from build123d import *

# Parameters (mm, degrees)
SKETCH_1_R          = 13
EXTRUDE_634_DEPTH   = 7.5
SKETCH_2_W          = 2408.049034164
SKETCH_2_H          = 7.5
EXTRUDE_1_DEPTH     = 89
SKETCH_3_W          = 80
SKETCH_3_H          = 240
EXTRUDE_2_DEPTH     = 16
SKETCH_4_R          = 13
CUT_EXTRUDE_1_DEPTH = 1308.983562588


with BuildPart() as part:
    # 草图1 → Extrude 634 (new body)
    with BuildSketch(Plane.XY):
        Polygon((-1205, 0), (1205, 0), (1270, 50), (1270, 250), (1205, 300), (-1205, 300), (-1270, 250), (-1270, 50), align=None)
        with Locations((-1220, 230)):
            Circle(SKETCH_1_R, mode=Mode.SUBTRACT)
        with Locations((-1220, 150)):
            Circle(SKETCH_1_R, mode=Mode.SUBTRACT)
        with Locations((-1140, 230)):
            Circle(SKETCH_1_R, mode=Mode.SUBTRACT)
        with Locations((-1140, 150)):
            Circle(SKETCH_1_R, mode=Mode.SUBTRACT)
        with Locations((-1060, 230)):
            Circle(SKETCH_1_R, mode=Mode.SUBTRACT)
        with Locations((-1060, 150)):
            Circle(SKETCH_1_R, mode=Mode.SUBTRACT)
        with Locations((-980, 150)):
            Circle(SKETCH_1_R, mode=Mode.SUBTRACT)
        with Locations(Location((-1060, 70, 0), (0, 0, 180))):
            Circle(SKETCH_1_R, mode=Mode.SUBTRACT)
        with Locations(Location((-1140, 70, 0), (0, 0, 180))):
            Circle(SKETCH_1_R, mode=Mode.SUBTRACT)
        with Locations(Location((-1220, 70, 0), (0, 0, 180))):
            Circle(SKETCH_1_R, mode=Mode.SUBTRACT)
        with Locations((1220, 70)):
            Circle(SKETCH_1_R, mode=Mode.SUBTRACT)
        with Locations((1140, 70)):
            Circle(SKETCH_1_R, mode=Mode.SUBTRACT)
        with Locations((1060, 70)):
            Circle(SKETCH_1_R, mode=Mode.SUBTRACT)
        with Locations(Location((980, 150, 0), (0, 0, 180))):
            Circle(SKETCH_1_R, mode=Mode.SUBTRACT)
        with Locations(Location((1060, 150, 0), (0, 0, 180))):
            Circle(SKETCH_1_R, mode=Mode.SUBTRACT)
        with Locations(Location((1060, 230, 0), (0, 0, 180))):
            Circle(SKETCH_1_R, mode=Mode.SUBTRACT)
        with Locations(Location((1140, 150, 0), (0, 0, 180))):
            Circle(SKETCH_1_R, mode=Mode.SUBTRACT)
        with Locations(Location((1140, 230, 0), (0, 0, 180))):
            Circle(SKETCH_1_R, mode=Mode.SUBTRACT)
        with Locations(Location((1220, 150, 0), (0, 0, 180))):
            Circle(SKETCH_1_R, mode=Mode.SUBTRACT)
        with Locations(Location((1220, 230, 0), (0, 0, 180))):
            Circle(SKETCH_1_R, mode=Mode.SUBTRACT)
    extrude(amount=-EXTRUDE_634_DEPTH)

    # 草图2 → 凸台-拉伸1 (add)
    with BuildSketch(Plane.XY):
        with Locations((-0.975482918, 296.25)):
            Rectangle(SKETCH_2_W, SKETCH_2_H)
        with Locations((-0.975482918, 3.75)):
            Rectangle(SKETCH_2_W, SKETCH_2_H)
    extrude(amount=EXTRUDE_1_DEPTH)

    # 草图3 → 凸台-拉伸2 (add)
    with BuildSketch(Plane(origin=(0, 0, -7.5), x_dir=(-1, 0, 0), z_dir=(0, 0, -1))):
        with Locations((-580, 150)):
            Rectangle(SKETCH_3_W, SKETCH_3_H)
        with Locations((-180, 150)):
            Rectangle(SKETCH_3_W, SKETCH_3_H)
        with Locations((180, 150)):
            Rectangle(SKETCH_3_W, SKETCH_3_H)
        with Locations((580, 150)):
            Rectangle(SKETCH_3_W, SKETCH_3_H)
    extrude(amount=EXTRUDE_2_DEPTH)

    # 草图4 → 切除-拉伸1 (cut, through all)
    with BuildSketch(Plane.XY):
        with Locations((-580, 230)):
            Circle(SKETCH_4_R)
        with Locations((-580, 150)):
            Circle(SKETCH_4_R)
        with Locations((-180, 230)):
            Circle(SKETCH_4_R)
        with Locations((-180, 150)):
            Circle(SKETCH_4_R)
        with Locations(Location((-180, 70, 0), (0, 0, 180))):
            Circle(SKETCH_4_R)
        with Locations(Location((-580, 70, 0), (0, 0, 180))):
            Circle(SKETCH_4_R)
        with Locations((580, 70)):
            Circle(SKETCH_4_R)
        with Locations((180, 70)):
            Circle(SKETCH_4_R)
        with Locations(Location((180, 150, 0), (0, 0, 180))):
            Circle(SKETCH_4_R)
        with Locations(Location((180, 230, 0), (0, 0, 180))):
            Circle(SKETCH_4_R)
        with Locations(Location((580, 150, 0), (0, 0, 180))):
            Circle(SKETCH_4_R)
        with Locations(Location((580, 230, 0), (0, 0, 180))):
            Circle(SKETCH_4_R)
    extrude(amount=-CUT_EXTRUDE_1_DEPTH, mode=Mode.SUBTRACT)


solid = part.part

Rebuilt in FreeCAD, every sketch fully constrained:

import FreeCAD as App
import Part
import Sketcher

V = App.Vector
Q = App.Units.Quantity


def add_polygon(sketch, points):
    """Adds a closed chain of lines whose ends are joined by coincident constraints."""
    first, n = sketch.GeometryCount, len(points)
    for a, b in zip(points, points[1:] + points[:1]):
        sketch.addGeometry(Part.LineSegment(App.Vector(*a, 0), App.Vector(*b, 0)), False)
    for i in range(n):
        sketch.addConstraint(Sketcher.Constraint("Coincident", first + i, 2, first + (i + 1) % n, 1))

doc = App.newDocument("Part")
body = doc.addObject("PartDesign::Body", "Body")

sketch1 = doc.addObject("Sketcher::SketchObject", "Sketch")
body.addObject(sketch1)
sketch1.AttachmentSupport = (doc.XY_Plane, [""])
sketch1.MapMode = "FlatFace"
add_polygon(sketch1, [(-1205, 0), (1205, 0), (1270, 50), (1270, 250), (1205, 300), (-1205, 300), (-1270, 250), (-1270, 50)])
sketch1.addGeometry(Part.Circle(V(-1220, 70, 0), V(0, 0, 1), 13), False)
sketch1.addGeometry(Part.Circle(V(-1140, 70, 0), V(0, 0, 1), 13), False)
sketch1.addGeometry(Part.Circle(V(-1060, 70, 0), V(0, 0, 1), 13), False)
sketch1.addGeometry(Part.Circle(V(1060, 70, 0), V(0, 0, 1), 13), False)
sketch1.addGeometry(Part.Circle(V(1140, 70, 0), V(0, 0, 1), 13), False)
sketch1.addGeometry(Part.Circle(V(1220, 70, 0), V(0, 0, 1), 13), False)
sketch1.addGeometry(Part.Circle(V(-1220, 150, 0), V(0, 0, 1), 13), False)
sketch1.addGeometry(Part.Circle(V(-1140, 150, 0), V(0, 0, 1), 13), False)
sketch1.addGeometry(Part.Circle(V(-1060, 150, 0), V(0, 0, 1), 13), False)
sketch1.addGeometry(Part.Circle(V(-980, 150, 0), V(0, 0, 1), 13), False)
sketch1.addGeometry(Part.Circle(V(-1220, 230, 0), V(0, 0, 1), 13), False)
sketch1.addGeometry(Part.Circle(V(-1140, 230, 0), V(0, 0, 1), 13), False)
sketch1.addGeometry(Part.Circle(V(-1060, 230, 0), V(0, 0, 1), 13), False)
sketch1.addGeometry(Part.Circle(V(980, 150, 0), V(0, 0, 1), 13), False)
sketch1.addGeometry(Part.Circle(V(1060, 150, 0), V(0, 0, 1), 13), False)
sketch1.addGeometry(Part.Circle(V(1140, 150, 0), V(0, 0, 1), 13), False)
sketch1.addGeometry(Part.Circle(V(1220, 150, 0), V(0, 0, 1), 13), False)
sketch1.addGeometry(Part.Circle(V(1060, 230, 0), V(0, 0, 1), 13), False)
sketch1.addGeometry(Part.Circle(V(1140, 230, 0), V(0, 0, 1), 13), False)
sketch1.addGeometry(Part.Circle(V(1220, 230, 0), V(0, 0, 1), 13), False)
sketch1.addConstraint(Sketcher.Constraint("Horizontal", 0))
sketch1.addConstraint(Sketcher.Constraint("Vertical", 2))
sketch1.addConstraint(Sketcher.Constraint("Horizontal", 4))
sketch1.addConstraint(Sketcher.Constraint("Vertical", 6))
sketch1.addConstraint(Sketcher.Constraint("Equal", 8, 9))
sketch1.addConstraint(Sketcher.Constraint("Equal", 9, 10))
sketch1.addConstraint(Sketcher.Constraint("Equal", 10, 11))
sketch1.addConstraint(Sketcher.Constraint("Equal", 11, 12))
sketch1.addConstraint(Sketcher.Constraint("Equal", 12, 13))
sketch1.addConstraint(Sketcher.Constraint("Equal", 13, 14))
sketch1.addConstraint(Sketcher.Constraint("Equal", 14, 15))
sketch1.addConstraint(Sketcher.Constraint("Equal", 15, 16))
sketch1.addConstraint(Sketcher.Constraint("Equal", 16, 17))
sketch1.addConstraint(Sketcher.Constraint("Equal", 17, 18))
sketch1.addConstraint(Sketcher.Constraint("Equal", 18, 19))
sketch1.addConstraint(Sketcher.Constraint("Equal", 19, 20))
sketch1.addConstraint(Sketcher.Constraint("Equal", 20, 21))
sketch1.addConstraint(Sketcher.Constraint("Equal", 21, 22))
sketch1.addConstraint(Sketcher.Constraint("Equal", 22, 23))
sketch1.addConstraint(Sketcher.Constraint("Equal", 23, 24))
sketch1.addConstraint(Sketcher.Constraint("Equal", 24, 25))
sketch1.addConstraint(Sketcher.Constraint("Equal", 25, 26))
sketch1.addConstraint(Sketcher.Constraint("Equal", 26, 27))
sketch1.addConstraint(Sketcher.Constraint("Symmetric", 0, 2, 7, 2, -1, 1))
sketch1.addConstraint(Sketcher.Constraint("Symmetric", 10, 3, 11, 3, -2))
sketch1.addConstraint(Sketcher.Constraint("Symmetric", 9, 3, 12, 3, -2))
sketch1.addConstraint(Sketcher.Constraint("Symmetric", 8, 3, 13, 3, -2))
sketch1.addConstraint(Sketcher.Constraint("Symmetric", 17, 3, 21, 3, -2))
sketch1.addConstraint(Sketcher.Constraint("Symmetric", 16, 3, 22, 3, -2))
sketch1.addConstraint(Sketcher.Constraint("Symmetric", 15, 3, 23, 3, -2))
sketch1.addConstraint(Sketcher.Constraint("Symmetric", 14, 3, 24, 3, -2))
sketch1.addConstraint(Sketcher.Constraint("Symmetric", 20, 3, 25, 3, -2))
sketch1.addConstraint(Sketcher.Constraint("Symmetric", 19, 3, 26, 3, -2))
sketch1.addConstraint(Sketcher.Constraint("Symmetric", 18, 3, 27, 3, -2))
sketch1.addConstraint(Sketcher.Constraint("Symmetric", 2, 2, 5, 2, -2))
sketch1.addConstraint(Sketcher.Constraint("Parallel", 1, 5))
sketch1.addConstraint(Sketcher.Constraint("Parallel", 3, 7))
sketch1.addConstraint(Sketcher.Constraint("Horizontal", 8, 3, 9, 3))
sketch1.addConstraint(Sketcher.Constraint("Horizontal", 9, 3, 10, 3))
sketch1.addConstraint(Sketcher.Constraint("Horizontal", 14, 3, 15, 3))
sketch1.addConstraint(Sketcher.Constraint("Horizontal", 15, 3, 16, 3))
sketch1.addConstraint(Sketcher.Constraint("Horizontal", 16, 3, 17, 3))
sketch1.addConstraint(Sketcher.Constraint("Horizontal", 18, 3, 19, 3))
sketch1.addConstraint(Sketcher.Constraint("Horizontal", 19, 3, 20, 3))
sketch1.addConstraint(Sketcher.Constraint("Horizontal", 1, 2, 6, 2))
sketch1.addConstraint(Sketcher.Constraint("Vertical", 8, 3, 14, 3))
sketch1.addConstraint(Sketcher.Constraint("Vertical", 9, 3, 15, 3))
sketch1.addConstraint(Sketcher.Constraint("Vertical", 10, 3, 16, 3))
sketch1.addConstraint(Sketcher.Constraint("Vertical", 14, 3, 18, 3))
sketch1.addConstraint(Sketcher.Constraint("Vertical", 15, 3, 19, 3))
sketch1.addConstraint(Sketcher.Constraint("Vertical", 16, 3, 20, 3))
sketch1.addConstraint(Sketcher.Constraint("Vertical", 0, 2, 3, 2))
sketch1.addConstraint(Sketcher.Constraint("Diameter", 8, Q("26 mm")))
sketch1.addConstraint(Sketcher.Constraint("DistanceX", 0, 1, 0, 2, Q("2410 mm")))
sketch1.addConstraint(Sketcher.Constraint("DistanceY", 2, 1, 2, 2, Q("200 mm")))
sketch1.addConstraint(Sketcher.Constraint("DistanceX", 8, 3, -1, 1, Q("1220 mm")))
sketch1.addConstraint(Sketcher.Constraint("DistanceY", -1, 1, 8, 3, Q("70 mm")))
sketch1.addConstraint(Sketcher.Constraint("DistanceX", 9, 3, -1, 1, Q("1140 mm")))
sketch1.addConstraint(Sketcher.Constraint("DistanceX", 10, 3, -1, 1, Q("1060 mm")))
sketch1.addConstraint(Sketcher.Constraint("DistanceY", -1, 1, 14, 3, Q("150 mm")))
sketch1.addConstraint(Sketcher.Constraint("DistanceX", 17, 3, -1, 1, Q("980 mm")))
sketch1.addConstraint(Sketcher.Constraint("DistanceY", -1, 1, 18, 3, Q("230 mm")))
sketch1.addConstraint(Sketcher.Constraint("DistanceX", -1, 1, 1, 2, Q("1270 mm")))
sketch1.addConstraint(Sketcher.Constraint("DistanceY", -1, 1, 1, 2, Q("50 mm")))
pad1 = doc.addObject("PartDesign::Pad", "Pad")
body.addObject(pad1)
pad1.Profile = sketch1
pad1.Length = 7.5
pad1.Reversed = True

sketch2 = doc.addObject("Sketcher::SketchObject", "Sketch001")
body.addObject(sketch2)
sketch2.AttachmentSupport = (doc.XY_Plane, [""])
sketch2.MapMode = "FlatFace"
add_polygon(sketch2, [(-1205, 300), (-1205, 292), (1203, 292), (1203, 300)])
add_polygon(sketch2, [(-1205, 8), (-1205, 0), (1203, 0), (1203, 8)])
sketch2.addConstraint(Sketcher.Constraint("Vertical", 0))
sketch2.addConstraint(Sketcher.Constraint("Horizontal", 1))
sketch2.addConstraint(Sketcher.Constraint("Vertical", 2))
sketch2.addConstraint(Sketcher.Constraint("Horizontal", 3))
sketch2.addConstraint(Sketcher.Constraint("Vertical", 4))
sketch2.addConstraint(Sketcher.Constraint("Horizontal", 5))
sketch2.addConstraint(Sketcher.Constraint("Vertical", 6))
sketch2.addConstraint(Sketcher.Constraint("Horizontal", 7))
sketch2.addConstraint(Sketcher.Constraint("PointOnObject", 4, 2, -1))
sketch2.addConstraint(Sketcher.Constraint("Vertical", 3, 2, 4, 2))
sketch2.addConstraint(Sketcher.Constraint("Vertical", 2, 2, 5, 2))
sketch2.addConstraint(Sketcher.Constraint("Equal", 2, 4))
sketch2.addConstraint(Sketcher.Constraint("DistanceY", 0, 2, 0, 1, Q("7.5 mm")))
sketch2.addConstraint(Sketcher.Constraint("DistanceX", 0, 2, -1, 1, Q("1205 mm")))
sketch2.addConstraint(Sketcher.Constraint("DistanceY", -1, 1, 2, 2, Q("300 mm")))
sketch2.addConstraint(Sketcher.Constraint("DistanceX", 1, 1, 1, 2, Q("2408.049034 mm")))
pad2 = doc.addObject("PartDesign::Pad", "Pad001")
body.addObject(pad2)
pad2.Profile = sketch2
pad2.Length = 89

sketch3 = doc.addObject("Sketcher::SketchObject", "Sketch002")
body.addObject(sketch3)
sketch3.AttachmentSupport = (doc.XY_Plane, [""])
sketch3.MapMode = "FlatFace"
sketch3.AttachmentOffset = App.Placement(V(0, 0, -7.5), App.Rotation())
add_polygon(sketch3, [(620, 270), (620, 30), (540, 30), (540, 270)])
add_polygon(sketch3, [(220, 270), (220, 30), (140, 30), (140, 270)])
add_polygon(sketch3, [(-140, 270), (-140, 30), (-220, 30), (-220, 270)])
add_polygon(sketch3, [(-540, 270), (-540, 30), (-620, 30), (-620, 270)])
sketch3.addConstraint(Sketcher.Constraint("Vertical", 0))
sketch3.addConstraint(Sketcher.Constraint("Horizontal", 1))
sketch3.addConstraint(Sketcher.Constraint("Vertical", 2))
sketch3.addConstraint(Sketcher.Constraint("Horizontal", 3))
sketch3.addConstraint(Sketcher.Constraint("Vertical", 4))
sketch3.addConstraint(Sketcher.Constraint("Horizontal", 5))
sketch3.addConstraint(Sketcher.Constraint("Vertical", 6))
sketch3.addConstraint(Sketcher.Constraint("Horizontal", 7))
sketch3.addConstraint(Sketcher.Constraint("Vertical", 8))
sketch3.addConstraint(Sketcher.Constraint("Horizontal", 9))
sketch3.addConstraint(Sketcher.Constraint("Vertical", 10))
sketch3.addConstraint(Sketcher.Constraint("Horizontal", 11))
sketch3.addConstraint(Sketcher.Constraint("Vertical", 12))
sketch3.addConstraint(Sketcher.Constraint("Horizontal", 13))
sketch3.addConstraint(Sketcher.Constraint("Vertical", 14))
sketch3.addConstraint(Sketcher.Constraint("Horizontal", 15))
sketch3.addConstraint(Sketcher.Constraint("Symmetric", 5, 2, 8, 2, -2))
sketch3.addConstraint(Sketcher.Constraint("Symmetric", 7, 2, 10, 2, -2))
sketch3.addConstraint(Sketcher.Constraint("Symmetric", 1, 2, 12, 2, -2))
sketch3.addConstraint(Sketcher.Constraint("Symmetric", 3, 2, 14, 2, -2))
sketch3.addConstraint(Sketcher.Constraint("Horizontal", 1, 2, 4, 2))
sketch3.addConstraint(Sketcher.Constraint("Horizontal", 3, 2, 6, 2))
sketch3.addConstraint(Sketcher.Constraint("Equal", 3, 5))
sketch3.addConstraint(Sketcher.Constraint("DistanceX", 1, 2, 1, 1, Q("80 mm")))
sketch3.addConstraint(Sketcher.Constraint("DistanceY", 0, 2, 0, 1, Q("240 mm")))
sketch3.addConstraint(Sketcher.Constraint("DistanceX", -1, 1, 0, 2, Q("620 mm")))
sketch3.addConstraint(Sketcher.Constraint("DistanceY", -1, 1, 0, 2, Q("30 mm")))
sketch3.addConstraint(Sketcher.Constraint("DistanceX", -1, 1, 4, 2, Q("220 mm")))
pad3 = doc.addObject("PartDesign::Pad", "Pad002")
body.addObject(pad3)
pad3.Profile = sketch3
pad3.Length = 16
pad3.Reversed = True

sketch4 = doc.addObject("Sketcher::SketchObject", "Sketch003")
body.addObject(sketch4)
sketch4.AttachmentSupport = (doc.XY_Plane, [""])
sketch4.MapMode = "FlatFace"
sketch4.addGeometry(Part.Circle(V(-580, 230, 0), V(0, 0, 1), 13), False)
sketch4.addGeometry(Part.Circle(V(-580, 150, 0), V(0, 0, 1), 13), False)
sketch4.addGeometry(Part.Circle(V(-180, 230, 0), V(0, 0, 1), 13), False)
sketch4.addGeometry(Part.Circle(V(-180, 150, 0), V(0, 0, 1), 13), False)
sketch4.addGeometry(Part.Circle(V(-180, 70, 0), V(0, 0, 1), 13), False)
sketch4.addGeometry(Part.Circle(V(-580, 70, 0), V(0, 0, 1), 13), False)
sketch4.addGeometry(Part.Circle(V(580, 70, 0), V(0, 0, 1), 13), False)
sketch4.addGeometry(Part.Circle(V(180, 70, 0), V(0, 0, 1), 13), False)
sketch4.addGeometry(Part.Circle(V(180, 150, 0), V(0, 0, 1), 13), False)
sketch4.addGeometry(Part.Circle(V(180, 230, 0), V(0, 0, 1), 13), False)
sketch4.addGeometry(Part.Circle(V(580, 150, 0), V(0, 0, 1), 13), False)
sketch4.addGeometry(Part.Circle(V(580, 230, 0), V(0, 0, 1), 13), False)
sketch4.addConstraint(Sketcher.Constraint("Equal", 0, 1))
sketch4.addConstraint(Sketcher.Constraint("Equal", 1, 2))
sketch4.addConstraint(Sketcher.Constraint("Equal", 2, 3))
sketch4.addConstraint(Sketcher.Constraint("Equal", 3, 4))
sketch4.addConstraint(Sketcher.Constraint("Equal", 4, 5))
sketch4.addConstraint(Sketcher.Constraint("Equal", 5, 6))
sketch4.addConstraint(Sketcher.Constraint("Equal", 6, 7))
sketch4.addConstraint(Sketcher.Constraint("Equal", 7, 8))
sketch4.addConstraint(Sketcher.Constraint("Equal", 8, 9))
sketch4.addConstraint(Sketcher.Constraint("Equal", 9, 10))
sketch4.addConstraint(Sketcher.Constraint("Equal", 10, 11))
sketch4.addConstraint(Sketcher.Constraint("Symmetric", 5, 3, 6, 3, -2))
sketch4.addConstraint(Sketcher.Constraint("Symmetric", 4, 3, 7, 3, -2))
sketch4.addConstraint(Sketcher.Constraint("Symmetric", 3, 3, 8, 3, -2))
sketch4.addConstraint(Sketcher.Constraint("Symmetric", 2, 3, 9, 3, -2))
sketch4.addConstraint(Sketcher.Constraint("Symmetric", 1, 3, 10, 3, -2))
sketch4.addConstraint(Sketcher.Constraint("Symmetric", 0, 3, 11, 3, -2))
sketch4.addConstraint(Sketcher.Constraint("Horizontal", 0, 3, 2, 3))
sketch4.addConstraint(Sketcher.Constraint("Horizontal", 1, 3, 3, 3))
sketch4.addConstraint(Sketcher.Constraint("Horizontal", 4, 3, 5, 3))
sketch4.addConstraint(Sketcher.Constraint("Vertical", 0, 3, 1, 3))
sketch4.addConstraint(Sketcher.Constraint("Vertical", 2, 3, 3, 3))
sketch4.addConstraint(Sketcher.Constraint("Vertical", 3, 3, 4, 3))
sketch4.addConstraint(Sketcher.Constraint("Vertical", 1, 3, 5, 3))
sketch4.addConstraint(Sketcher.Constraint("Diameter", 0, Q("26 mm")))
sketch4.addConstraint(Sketcher.Constraint("DistanceX", 0, 3, -1, 1, Q("580 mm")))
sketch4.addConstraint(Sketcher.Constraint("DistanceY", -1, 1, 0, 3, Q("230 mm")))
sketch4.addConstraint(Sketcher.Constraint("DistanceY", -1, 1, 1, 3, Q("150 mm")))
sketch4.addConstraint(Sketcher.Constraint("DistanceX", 2, 3, -1, 1, Q("180 mm")))
sketch4.addConstraint(Sketcher.Constraint("DistanceY", -1, 1, 4, 3, Q("70 mm")))
pocket1 = doc.addObject("PartDesign::Pocket", "Pocket")
body.addObject(pocket1)
pocket1.Profile = sketch4
pocket1.Type = "ThroughAll"

doc.recompute()
